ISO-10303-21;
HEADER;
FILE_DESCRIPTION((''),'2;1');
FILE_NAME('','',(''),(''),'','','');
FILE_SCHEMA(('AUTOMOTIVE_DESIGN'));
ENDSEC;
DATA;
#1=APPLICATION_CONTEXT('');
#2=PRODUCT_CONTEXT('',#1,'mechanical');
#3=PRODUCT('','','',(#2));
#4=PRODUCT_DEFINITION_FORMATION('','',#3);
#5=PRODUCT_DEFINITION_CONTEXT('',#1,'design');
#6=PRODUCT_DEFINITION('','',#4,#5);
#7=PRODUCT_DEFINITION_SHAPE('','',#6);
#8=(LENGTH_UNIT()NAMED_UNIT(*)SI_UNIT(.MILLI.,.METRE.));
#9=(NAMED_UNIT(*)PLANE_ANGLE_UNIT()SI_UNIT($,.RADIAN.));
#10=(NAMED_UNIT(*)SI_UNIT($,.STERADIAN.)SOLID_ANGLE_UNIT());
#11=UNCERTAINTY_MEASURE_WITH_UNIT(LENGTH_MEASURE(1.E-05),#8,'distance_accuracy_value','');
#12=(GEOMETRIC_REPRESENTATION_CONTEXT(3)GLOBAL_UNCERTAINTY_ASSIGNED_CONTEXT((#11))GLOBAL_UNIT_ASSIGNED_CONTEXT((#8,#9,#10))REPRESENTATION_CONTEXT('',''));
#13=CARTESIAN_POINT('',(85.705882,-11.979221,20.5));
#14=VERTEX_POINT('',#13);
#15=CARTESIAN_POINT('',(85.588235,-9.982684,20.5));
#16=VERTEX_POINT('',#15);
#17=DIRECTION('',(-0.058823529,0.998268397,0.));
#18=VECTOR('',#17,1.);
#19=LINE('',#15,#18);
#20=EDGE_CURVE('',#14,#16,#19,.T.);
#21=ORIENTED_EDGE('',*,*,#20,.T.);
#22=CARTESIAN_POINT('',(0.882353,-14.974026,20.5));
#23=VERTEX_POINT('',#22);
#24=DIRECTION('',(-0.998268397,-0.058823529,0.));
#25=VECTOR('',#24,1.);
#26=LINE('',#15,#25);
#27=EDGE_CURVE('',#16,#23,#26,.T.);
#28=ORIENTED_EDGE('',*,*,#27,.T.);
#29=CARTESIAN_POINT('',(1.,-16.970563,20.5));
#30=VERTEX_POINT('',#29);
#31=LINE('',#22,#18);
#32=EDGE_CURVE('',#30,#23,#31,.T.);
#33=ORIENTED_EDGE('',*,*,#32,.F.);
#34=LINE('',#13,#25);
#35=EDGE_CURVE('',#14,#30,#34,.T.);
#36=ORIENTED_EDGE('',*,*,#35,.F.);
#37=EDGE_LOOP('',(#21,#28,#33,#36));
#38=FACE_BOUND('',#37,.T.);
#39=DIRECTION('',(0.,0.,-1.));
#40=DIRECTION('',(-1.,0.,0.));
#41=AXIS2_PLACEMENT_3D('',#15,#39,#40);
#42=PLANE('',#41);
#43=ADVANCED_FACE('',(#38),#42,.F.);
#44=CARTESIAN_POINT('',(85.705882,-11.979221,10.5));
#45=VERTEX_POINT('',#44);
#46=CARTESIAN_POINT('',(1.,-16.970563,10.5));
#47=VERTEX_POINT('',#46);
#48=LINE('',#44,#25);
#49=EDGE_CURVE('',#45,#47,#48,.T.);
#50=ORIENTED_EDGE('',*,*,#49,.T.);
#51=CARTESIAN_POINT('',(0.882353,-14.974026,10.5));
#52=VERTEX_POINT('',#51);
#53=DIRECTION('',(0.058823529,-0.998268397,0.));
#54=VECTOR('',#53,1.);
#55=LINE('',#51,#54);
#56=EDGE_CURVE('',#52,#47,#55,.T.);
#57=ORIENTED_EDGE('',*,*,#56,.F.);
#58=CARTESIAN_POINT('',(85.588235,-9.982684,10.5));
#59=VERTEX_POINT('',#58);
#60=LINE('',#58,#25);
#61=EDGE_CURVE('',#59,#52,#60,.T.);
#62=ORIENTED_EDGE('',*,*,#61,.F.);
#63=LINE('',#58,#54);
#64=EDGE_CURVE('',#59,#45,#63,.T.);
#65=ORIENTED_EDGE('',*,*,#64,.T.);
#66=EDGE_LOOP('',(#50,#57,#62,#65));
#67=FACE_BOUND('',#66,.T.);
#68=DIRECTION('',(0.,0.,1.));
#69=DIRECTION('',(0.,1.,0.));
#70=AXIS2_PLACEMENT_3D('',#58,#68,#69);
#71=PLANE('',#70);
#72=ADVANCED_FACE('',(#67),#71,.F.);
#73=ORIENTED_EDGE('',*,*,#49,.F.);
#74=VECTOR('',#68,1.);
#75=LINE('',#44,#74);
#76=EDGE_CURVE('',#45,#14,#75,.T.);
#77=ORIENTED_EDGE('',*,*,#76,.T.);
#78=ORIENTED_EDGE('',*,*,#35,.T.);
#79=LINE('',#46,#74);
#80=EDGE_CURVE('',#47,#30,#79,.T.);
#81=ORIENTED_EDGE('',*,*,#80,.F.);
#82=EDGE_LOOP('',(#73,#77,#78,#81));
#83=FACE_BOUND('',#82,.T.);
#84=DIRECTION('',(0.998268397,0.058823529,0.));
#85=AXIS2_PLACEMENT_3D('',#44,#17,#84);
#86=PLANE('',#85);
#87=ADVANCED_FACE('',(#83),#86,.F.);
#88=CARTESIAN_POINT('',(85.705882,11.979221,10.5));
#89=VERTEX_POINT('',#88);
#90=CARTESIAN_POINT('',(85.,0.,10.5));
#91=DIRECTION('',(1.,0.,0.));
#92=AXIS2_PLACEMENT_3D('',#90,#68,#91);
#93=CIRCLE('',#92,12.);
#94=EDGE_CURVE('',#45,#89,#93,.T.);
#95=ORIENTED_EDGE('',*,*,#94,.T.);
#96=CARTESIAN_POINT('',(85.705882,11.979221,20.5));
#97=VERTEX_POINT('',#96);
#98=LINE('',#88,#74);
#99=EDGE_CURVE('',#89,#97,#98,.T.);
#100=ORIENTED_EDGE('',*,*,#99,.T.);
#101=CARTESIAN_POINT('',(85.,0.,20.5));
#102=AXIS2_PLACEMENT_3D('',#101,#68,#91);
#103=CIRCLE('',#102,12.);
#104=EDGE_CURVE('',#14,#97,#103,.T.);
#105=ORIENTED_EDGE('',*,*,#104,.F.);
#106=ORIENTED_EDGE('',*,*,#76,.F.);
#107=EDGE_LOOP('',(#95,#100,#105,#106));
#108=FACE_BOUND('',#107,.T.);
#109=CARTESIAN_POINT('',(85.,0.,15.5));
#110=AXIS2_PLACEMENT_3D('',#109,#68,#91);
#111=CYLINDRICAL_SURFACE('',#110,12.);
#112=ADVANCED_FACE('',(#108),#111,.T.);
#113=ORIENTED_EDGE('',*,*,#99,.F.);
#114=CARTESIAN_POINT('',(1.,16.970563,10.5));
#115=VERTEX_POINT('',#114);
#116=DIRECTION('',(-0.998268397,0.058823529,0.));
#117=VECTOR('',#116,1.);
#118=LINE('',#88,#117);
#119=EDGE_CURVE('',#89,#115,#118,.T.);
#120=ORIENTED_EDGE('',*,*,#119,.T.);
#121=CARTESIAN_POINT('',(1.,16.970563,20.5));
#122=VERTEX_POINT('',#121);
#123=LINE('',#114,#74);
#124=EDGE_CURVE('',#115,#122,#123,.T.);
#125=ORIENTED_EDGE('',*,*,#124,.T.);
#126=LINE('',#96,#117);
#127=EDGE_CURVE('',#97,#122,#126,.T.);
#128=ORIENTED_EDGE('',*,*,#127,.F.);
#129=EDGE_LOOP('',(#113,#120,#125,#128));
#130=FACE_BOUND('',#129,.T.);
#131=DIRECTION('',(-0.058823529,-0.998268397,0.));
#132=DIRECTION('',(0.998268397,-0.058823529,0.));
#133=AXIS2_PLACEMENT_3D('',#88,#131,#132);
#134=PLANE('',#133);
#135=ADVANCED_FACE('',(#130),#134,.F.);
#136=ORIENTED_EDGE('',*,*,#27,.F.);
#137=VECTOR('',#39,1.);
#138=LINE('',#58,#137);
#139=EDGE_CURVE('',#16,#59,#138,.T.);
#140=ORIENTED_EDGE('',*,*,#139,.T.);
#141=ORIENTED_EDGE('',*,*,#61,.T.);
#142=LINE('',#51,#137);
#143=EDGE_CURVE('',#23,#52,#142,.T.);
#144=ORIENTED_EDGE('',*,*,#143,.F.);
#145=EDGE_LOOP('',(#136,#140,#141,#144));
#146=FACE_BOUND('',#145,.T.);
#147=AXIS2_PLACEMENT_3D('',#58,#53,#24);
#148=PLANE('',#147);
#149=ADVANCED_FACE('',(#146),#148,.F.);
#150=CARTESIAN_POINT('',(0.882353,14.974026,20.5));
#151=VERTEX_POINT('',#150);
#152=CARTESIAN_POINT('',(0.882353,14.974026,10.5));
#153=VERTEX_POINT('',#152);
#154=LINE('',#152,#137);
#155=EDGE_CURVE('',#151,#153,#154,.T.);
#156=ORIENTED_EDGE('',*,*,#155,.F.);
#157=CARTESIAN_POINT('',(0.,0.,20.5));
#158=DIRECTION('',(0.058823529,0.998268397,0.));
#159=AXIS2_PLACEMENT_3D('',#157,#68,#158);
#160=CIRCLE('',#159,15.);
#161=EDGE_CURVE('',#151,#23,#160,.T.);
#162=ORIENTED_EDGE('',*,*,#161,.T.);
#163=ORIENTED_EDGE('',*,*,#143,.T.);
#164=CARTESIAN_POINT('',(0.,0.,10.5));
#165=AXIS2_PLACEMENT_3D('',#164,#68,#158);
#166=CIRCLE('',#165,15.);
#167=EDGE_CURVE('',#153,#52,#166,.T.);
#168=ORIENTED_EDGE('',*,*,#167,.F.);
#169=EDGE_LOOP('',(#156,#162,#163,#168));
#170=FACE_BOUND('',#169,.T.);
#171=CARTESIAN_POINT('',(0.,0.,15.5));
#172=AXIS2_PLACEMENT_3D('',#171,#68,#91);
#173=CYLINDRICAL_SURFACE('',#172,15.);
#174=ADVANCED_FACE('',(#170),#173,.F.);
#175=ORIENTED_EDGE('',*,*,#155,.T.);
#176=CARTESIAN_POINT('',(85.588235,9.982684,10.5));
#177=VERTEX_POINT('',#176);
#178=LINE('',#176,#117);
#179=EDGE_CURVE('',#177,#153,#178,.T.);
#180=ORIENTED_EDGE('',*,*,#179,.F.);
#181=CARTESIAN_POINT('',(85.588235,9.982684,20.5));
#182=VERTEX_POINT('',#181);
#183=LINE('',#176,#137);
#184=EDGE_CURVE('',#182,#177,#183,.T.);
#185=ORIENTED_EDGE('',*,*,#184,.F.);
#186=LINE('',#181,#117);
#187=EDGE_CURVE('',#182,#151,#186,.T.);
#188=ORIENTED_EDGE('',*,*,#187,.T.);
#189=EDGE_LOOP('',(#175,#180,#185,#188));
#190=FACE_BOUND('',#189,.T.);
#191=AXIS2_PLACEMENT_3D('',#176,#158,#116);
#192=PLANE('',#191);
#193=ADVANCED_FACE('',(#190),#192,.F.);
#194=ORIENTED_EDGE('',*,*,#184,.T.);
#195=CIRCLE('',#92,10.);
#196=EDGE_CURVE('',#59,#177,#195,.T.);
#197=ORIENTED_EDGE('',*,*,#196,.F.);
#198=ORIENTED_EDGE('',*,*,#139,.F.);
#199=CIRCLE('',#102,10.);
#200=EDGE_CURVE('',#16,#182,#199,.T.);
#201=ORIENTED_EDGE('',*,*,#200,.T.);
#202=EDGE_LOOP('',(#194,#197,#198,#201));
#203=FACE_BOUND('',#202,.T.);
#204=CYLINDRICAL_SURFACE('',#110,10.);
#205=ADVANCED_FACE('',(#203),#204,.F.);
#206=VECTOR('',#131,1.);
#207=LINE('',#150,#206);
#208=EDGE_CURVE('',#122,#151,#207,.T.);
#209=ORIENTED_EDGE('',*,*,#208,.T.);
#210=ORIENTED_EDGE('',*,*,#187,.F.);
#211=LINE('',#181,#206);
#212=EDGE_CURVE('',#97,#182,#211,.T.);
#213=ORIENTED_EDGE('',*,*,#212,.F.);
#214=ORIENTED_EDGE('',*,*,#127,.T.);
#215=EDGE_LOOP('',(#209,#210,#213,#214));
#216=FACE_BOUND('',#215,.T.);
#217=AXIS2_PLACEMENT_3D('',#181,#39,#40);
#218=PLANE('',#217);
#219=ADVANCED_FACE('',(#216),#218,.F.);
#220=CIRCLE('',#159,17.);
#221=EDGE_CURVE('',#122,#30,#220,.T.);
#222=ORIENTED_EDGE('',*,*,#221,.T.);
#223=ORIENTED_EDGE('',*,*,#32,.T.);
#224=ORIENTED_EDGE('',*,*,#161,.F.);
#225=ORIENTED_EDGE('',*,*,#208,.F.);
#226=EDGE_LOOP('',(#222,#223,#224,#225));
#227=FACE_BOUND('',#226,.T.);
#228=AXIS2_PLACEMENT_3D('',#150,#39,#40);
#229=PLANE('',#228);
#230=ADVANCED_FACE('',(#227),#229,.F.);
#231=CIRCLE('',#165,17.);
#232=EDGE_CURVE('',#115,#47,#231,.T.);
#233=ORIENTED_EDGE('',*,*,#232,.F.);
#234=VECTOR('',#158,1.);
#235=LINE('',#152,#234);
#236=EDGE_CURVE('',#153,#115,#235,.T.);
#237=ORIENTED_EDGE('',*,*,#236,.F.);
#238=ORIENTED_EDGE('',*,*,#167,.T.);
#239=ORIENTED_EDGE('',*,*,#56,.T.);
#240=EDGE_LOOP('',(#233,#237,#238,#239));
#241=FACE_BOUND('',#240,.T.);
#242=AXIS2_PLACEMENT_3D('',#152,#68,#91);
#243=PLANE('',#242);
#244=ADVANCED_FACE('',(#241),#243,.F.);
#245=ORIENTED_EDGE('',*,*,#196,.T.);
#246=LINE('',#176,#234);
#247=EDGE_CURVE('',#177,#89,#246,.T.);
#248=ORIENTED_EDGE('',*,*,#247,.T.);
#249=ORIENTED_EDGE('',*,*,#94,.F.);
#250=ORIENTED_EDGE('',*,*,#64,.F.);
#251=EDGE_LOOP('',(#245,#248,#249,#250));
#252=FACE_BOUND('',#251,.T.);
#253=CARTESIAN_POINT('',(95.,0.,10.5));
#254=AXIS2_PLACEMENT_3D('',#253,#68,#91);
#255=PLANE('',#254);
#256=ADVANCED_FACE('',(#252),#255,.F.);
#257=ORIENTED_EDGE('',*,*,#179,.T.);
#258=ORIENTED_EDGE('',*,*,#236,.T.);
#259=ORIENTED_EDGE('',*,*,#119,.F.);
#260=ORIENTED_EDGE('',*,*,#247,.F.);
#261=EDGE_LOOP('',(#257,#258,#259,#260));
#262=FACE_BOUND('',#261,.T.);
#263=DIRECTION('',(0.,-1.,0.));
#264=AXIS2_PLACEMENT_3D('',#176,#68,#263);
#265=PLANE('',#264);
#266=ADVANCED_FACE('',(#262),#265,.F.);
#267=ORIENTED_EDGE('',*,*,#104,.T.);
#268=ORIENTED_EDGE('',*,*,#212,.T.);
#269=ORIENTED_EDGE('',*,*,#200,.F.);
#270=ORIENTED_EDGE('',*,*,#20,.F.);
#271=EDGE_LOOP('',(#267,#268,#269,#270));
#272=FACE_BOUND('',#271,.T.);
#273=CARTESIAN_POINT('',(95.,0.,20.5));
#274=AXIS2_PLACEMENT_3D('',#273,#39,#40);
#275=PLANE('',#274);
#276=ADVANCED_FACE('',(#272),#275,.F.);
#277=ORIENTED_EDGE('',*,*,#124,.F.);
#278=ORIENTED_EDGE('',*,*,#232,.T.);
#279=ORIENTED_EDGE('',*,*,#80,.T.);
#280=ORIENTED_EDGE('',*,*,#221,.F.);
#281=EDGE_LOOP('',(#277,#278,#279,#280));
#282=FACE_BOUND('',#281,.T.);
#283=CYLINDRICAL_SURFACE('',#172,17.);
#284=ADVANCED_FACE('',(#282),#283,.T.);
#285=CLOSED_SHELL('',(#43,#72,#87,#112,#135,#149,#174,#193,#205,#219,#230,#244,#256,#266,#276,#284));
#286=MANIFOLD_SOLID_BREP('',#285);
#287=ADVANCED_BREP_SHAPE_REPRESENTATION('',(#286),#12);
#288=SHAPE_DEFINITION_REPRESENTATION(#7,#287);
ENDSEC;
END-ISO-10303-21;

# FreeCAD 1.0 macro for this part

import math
import FreeCAD as App
import Part
import Sketcher
Q = App.Units.Quantity

doc = App.newDocument("Part")
body = doc.addObject("PartDesign::Body", "Body")

sketch1 = body.newObject("Sketcher::SketchObject", "Sketch")
sketch1.AttachmentSupport = (doc.getObject("XZ_Plane"), [""])
sketch1.MapMode = "FlatFace"
sketch1.addGeometry(Part.LineSegment(App.Vector(-17, 10.5, 0), App.Vector(-17, 20.5, 0)), False)
sketch1.addGeometry(Part.LineSegment(App.Vector(-17, 20.5, 0), App.Vector(-15, 20.5, 0)), False)
sketch1.addGeometry(Part.LineSegment(App.Vector(-15, 20.5, 0), App.Vector(-15, 10.5, 0)), False)
sketch1.addGeometry(Part.LineSegment(App.Vector(-15, 10.5, 0), App.Vector(-17, 10.5, 0)), False)
sketch1.addConstraint(Sketcher.Constraint("Coincident", 0, 2, 1, 1))
sketch1.addConstraint(Sketcher.Constraint("Coincident", 1, 2, 2, 1))
sketch1.addConstraint(Sketcher.Constraint("Coincident", 2, 2, 3, 1))
sketch1.addConstraint(Sketcher.Constraint("Coincident", 3, 2, 0, 1))
sketch1.addConstraint(Sketcher.Constraint("Vertical", 0))
sketch1.addConstraint(Sketcher.Constraint("Horizontal", 1))
sketch1.addConstraint(Sketcher.Constraint("Vertical", 2))
sketch1.addConstraint(Sketcher.Constraint("Horizontal", 3))
sketch1.addConstraint(Sketcher.Constraint("DistanceX", 1, 1, 1, 2, Q("2 mm")))
sketch1.addConstraint(Sketcher.Constraint("DistanceY", 0, 1, 0, 2, Q("10 mm")))
sketch1.addConstraint(Sketcher.Constraint("DistanceX", 0, 2, -1, 1, Q("17 mm")))
sketch1.addConstraint(Sketcher.Constraint("DistanceY", -1, 1, 0, 2, Q("20.5 mm")))

sketch2 = body.newObject("Sketcher::SketchObject", "Sketch001")
sketch2.AttachmentSupport = (doc.getObject("XY_Plane"), [""])
sketch2.MapMode = "FlatFace"
sketch2.AttachmentOffset = App.Placement(App.Vector(0, 0, 15.5), App.Rotation())
sketch2.addGeometry(Part.ArcOfCircle(Part.Circle(App.Vector(0, 0, 0), App.Vector(0, 0, 1), 15), math.radians(87), math.radians(180)), False)
sketch2.addGeometry(Part.LineSegment(App.Vector(1, 15, 0), App.Vector(86, 10, 0)), False)
sketch2.addGeometry(Part.ArcOfCircle(Part.Circle(App.Vector(85, 0, 0), App.Vector(0, 0, 1), 10), math.radians(0), math.radians(87)), False)
sketch2.addConstraint(Sketcher.Constraint("Tangent", 0, 1, 1, 1))
sketch2.addConstraint(Sketcher.Constraint("Tangent", 1, 2, 2, 2))
sketch2.addConstraint(Sketcher.Constraint("Coincident", 0, 3, -1, 1))
sketch2.addConstraint(Sketcher.Constraint("PointOnObject", 2, 3, -1))
sketch2.addConstraint(Sketcher.Constraint("PointOnObject", 0, 2, -1))
sketch2.addConstraint(Sketcher.Constraint("PointOnObject", 2, 1, -1))
sketch2.addConstraint(Sketcher.Constraint("Radius", 0, Q("15 mm")))
sketch2.addConstraint(Sketcher.Constraint("Radius", 2, Q("10 mm")))
sketch2.addConstraint(Sketcher.Constraint("DistanceX", -1, 1, 2, 3, Q("85 mm")))
doc.recompute()

additivepipe = body.newObject("PartDesign::AdditivePipe", "AdditivePipe")
additivepipe.Profile = sketch1
additivepipe.Spine = (sketch2, ["Edge1", "Edge2", "Edge3"])
body2 = doc.addObject("PartDesign::Body", "Body001")
doc.recompute()

body2.BaseFeature = body
doc.recompute()

mirroring = doc.addObject("Part::Mirroring", "Mirroring")
mirroring.Source = body
mirroring.Base = App.Vector(0, 0, 0)
mirroring.Normal = App.Vector(0, -1, 0)
body3 = doc.addObject("PartDesign::Body", "Body002")
body3.BaseFeature = mirroring
boolean = body2.newObject("PartDesign::Boolean", "Boolean")
boolean.Type = "Fuse"
boolean.addObjects([body3])
doc.recompute()
mirroring.Visibility = False

doc.recompute()
